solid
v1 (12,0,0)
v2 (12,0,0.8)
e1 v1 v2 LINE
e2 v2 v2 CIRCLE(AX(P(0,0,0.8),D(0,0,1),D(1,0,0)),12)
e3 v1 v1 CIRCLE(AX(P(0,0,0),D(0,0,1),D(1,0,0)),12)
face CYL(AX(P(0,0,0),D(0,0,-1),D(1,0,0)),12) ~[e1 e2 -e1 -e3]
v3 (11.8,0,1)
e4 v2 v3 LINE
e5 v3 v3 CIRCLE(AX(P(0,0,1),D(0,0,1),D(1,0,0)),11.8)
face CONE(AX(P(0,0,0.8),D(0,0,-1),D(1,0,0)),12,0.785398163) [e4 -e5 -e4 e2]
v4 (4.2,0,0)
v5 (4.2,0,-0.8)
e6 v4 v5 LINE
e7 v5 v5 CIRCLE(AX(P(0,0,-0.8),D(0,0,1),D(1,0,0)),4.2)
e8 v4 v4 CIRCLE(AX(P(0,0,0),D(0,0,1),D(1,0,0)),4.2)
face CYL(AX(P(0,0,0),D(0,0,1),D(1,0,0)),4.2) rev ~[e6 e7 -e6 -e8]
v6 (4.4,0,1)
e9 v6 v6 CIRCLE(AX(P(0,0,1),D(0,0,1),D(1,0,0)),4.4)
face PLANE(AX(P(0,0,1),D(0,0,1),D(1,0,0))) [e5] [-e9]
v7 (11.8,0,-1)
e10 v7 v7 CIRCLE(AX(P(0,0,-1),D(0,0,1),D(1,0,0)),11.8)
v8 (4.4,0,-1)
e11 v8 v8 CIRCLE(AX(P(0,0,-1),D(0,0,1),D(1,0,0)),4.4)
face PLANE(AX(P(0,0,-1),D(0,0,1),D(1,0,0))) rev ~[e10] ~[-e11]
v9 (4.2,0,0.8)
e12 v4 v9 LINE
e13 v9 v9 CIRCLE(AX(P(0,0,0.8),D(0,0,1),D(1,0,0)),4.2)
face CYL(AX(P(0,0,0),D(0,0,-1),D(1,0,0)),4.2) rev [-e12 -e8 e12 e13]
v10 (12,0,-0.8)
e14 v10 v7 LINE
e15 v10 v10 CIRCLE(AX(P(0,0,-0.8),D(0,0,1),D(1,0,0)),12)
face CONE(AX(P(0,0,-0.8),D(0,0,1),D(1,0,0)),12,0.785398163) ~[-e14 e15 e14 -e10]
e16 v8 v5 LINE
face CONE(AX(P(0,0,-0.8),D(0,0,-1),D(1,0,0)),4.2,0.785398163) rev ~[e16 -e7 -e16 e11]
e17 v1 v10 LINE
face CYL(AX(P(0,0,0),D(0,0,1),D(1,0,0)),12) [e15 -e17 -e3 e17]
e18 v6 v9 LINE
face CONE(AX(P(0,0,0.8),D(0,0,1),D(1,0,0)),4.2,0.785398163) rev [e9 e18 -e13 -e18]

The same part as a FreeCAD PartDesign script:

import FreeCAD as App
import Part
import Sketcher
from FreeCAD import Vector
Q = App.Units.Quantity


def edges_at(feature, points):
    """Names of the edges that pass closest to the given points."""
    edges = feature.Shape.Edges
    near = lambda p: min(range(len(edges)), key=lambda i: edges[i].distToShape(Part.Vertex(*p))[0])
    return sorted({f"Edge{near(p) + 1}" for p in points})

doc = App.newDocument("Part")
params = doc.addObject("Spreadsheet::Sheet", "Params")
for row, (alias, value) in enumerate([
    ("sketch1_diameter", "24 mm"),
    ("sketch1_diameter2", "8.4 mm"),
    ("pad1_length", "2 mm"),
    ("chamfer_size", "0.2 mm"),
], start=1):
    params.set(f"A{row}", alias)
    params.set(f"B{row}", "=" + value)
    params.setAlias(f"B{row}", alias)

body = doc.addObject("PartDesign::Body", "Body")

sketch1 = body.newObject("Sketcher::SketchObject", "Sketch")
sketch1.AttachmentSupport = (doc.getObject("XY_Plane"), [""])
sketch1.MapMode = "FlatFace"
sketch1.addGeometry([
    Part.Circle(Vector(0, 0, 0), Vector(0, 0, 1), 12),
    Part.Circle(Vector(0, 0, 0), Vector(0, 0, 1), 4.2),
], False)
sketch1.addConstraint([
    Sketcher.Constraint("Coincident", 0, 3, -1, 1),
    Sketcher.Constraint("Coincident", 1, 3, -1, 1),
    Sketcher.Constraint("Diameter", 0, Q("24 mm")),
    Sketcher.Constraint("Diameter", 1, Q("8.4 mm")),
])
sketch1.setExpression("Constraints[2]", "Params.sketch1_diameter")
sketch1.setExpression("Constraints[3]", "Params.sketch1_diameter2")
pad1 = body.newObject("PartDesign::Pad", "Pad")
pad1.Profile = sketch1
pad1.setExpression("Length", "Params.pad1_length")
pad1.Midplane = True
doc.recompute()

chamfer = body.newObject("PartDesign::Chamfer", "Chamfer")
chamfer.Base = (pad1, edges_at(pad1, [
    (-12, 0, 1),
    (-12, 0, -1),
    (-4.2, 0, 1),
    (-4.2, 0, -1),
]))
chamfer.setExpression("Size", "Params.chamfer_size")

doc.recompute()
